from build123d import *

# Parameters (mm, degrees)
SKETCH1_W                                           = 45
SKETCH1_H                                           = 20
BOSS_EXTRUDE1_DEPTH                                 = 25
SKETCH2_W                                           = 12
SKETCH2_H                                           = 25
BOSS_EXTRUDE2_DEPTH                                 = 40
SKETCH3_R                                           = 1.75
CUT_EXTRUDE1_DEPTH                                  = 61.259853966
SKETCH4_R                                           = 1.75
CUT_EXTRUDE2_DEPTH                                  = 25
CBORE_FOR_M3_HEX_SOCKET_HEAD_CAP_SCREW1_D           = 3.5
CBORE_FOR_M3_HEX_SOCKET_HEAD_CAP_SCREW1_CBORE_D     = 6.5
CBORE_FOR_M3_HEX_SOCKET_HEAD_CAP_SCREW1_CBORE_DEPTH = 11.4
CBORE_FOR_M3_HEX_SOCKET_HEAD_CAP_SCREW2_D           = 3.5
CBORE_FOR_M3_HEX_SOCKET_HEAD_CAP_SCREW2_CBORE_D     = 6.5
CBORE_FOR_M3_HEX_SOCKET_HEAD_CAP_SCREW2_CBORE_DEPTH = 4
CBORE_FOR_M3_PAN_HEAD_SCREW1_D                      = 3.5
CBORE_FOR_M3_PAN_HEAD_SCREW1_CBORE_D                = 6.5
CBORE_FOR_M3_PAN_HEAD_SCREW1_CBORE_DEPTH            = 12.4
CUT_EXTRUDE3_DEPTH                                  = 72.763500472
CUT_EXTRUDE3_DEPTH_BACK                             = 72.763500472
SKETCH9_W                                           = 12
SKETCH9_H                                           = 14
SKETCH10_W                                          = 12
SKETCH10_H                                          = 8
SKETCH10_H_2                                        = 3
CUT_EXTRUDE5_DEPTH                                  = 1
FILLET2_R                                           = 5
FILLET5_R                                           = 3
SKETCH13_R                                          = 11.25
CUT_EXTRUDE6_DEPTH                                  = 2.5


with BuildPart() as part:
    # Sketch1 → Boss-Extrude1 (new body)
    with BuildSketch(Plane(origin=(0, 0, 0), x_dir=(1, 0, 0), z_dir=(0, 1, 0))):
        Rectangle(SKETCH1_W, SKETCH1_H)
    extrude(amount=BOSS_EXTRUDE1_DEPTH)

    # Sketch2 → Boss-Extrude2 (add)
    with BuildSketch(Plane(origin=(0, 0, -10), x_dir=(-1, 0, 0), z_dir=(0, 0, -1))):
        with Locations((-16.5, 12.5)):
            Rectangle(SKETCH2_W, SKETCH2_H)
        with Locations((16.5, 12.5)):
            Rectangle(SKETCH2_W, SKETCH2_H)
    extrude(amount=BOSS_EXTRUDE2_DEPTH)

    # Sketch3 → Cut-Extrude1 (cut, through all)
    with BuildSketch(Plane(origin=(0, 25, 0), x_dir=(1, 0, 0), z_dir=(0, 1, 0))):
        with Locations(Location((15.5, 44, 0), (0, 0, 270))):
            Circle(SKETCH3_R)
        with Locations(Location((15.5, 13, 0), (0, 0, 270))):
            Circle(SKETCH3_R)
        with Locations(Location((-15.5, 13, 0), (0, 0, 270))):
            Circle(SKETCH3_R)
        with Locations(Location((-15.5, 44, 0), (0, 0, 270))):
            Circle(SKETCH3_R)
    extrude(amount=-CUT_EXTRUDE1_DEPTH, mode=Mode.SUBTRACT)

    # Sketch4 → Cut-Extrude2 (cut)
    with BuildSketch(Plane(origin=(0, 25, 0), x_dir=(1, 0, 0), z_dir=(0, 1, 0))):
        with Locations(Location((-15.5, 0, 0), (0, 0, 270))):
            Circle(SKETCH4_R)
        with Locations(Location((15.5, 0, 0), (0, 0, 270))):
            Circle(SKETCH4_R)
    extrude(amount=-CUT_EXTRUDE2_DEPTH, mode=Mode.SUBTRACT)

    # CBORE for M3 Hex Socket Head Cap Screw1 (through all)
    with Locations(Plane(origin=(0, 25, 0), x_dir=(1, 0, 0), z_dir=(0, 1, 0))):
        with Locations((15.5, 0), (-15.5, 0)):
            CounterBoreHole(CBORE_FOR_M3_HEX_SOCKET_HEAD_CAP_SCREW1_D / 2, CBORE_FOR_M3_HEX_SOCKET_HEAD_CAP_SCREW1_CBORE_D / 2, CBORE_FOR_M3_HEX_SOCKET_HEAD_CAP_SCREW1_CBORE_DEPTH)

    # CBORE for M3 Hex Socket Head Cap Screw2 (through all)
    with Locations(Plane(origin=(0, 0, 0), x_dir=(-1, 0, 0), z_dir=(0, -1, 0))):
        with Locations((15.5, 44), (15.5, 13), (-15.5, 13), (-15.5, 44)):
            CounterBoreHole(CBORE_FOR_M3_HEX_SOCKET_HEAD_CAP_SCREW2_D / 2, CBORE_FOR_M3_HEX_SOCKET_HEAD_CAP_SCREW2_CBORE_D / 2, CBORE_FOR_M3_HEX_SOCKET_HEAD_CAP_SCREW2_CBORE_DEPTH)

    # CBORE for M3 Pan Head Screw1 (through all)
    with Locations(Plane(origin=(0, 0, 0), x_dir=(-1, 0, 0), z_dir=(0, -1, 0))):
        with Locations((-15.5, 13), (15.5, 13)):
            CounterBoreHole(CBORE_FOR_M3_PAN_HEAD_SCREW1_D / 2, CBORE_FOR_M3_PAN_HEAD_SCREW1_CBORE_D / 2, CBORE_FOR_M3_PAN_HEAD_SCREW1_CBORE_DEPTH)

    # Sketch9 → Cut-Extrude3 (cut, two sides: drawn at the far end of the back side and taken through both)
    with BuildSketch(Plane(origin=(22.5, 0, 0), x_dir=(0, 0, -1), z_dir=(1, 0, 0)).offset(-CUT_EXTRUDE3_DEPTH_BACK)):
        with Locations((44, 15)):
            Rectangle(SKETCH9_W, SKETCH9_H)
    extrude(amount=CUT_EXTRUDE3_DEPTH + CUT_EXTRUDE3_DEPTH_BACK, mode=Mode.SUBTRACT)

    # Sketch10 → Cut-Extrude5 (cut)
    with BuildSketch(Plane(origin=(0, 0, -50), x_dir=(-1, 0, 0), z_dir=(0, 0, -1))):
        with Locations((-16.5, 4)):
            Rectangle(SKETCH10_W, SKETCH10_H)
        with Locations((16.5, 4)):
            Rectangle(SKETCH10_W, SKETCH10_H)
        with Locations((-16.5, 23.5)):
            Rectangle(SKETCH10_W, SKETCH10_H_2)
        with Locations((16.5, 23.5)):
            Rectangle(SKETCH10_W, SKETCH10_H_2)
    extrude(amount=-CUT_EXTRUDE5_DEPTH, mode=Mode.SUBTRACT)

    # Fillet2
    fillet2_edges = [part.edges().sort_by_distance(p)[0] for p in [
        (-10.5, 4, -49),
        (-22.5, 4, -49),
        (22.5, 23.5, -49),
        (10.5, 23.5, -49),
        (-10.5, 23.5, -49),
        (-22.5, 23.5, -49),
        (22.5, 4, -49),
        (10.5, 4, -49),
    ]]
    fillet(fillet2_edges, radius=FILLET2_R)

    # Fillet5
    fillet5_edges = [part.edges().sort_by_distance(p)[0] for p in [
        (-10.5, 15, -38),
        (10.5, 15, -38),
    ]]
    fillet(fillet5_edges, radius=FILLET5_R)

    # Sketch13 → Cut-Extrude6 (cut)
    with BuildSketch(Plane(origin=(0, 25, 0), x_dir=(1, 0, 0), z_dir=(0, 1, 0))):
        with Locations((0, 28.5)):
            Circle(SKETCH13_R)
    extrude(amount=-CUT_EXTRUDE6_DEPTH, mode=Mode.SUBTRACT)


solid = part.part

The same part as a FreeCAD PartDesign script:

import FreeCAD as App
import Part
import Sketcher
Q = App.Units.Quantity


def edges_at(feature, points):
    """Names of the edges that pass closest to the given points."""
    edges = feature.Shape.Edges
    near = lambda p: min(range(len(edges)), key=lambda i: edges[i].distToShape(Part.Vertex(*p))[0])
    return sorted({f"Edge{near(p) + 1}" for p in points})

doc = App.newDocument("Part")
body = doc.addObject("PartDesign::Body", "Body")

# Sketch on XZ plane
sketch1 = body.newObject("Sketcher::SketchObject", "Sketch")
sketch1.AttachmentSupport = (doc.getObject("XZ_Plane"), [""])
sketch1.MapMode = "FlatFace"
sketch1.addGeometry(Part.LineSegment(App.Vector(-22, -10, 0), App.Vector(-22, 10, 0)), False)
sketch1.addGeometry(Part.LineSegment(App.Vector(-22, 10, 0), App.Vector(22, 10, 0)), False)
sketch1.addGeometry(Part.LineSegment(App.Vector(22, 10, 0), App.Vector(22, -10, 0)), False)
sketch1.addGeometry(Part.LineSegment(App.Vector(22, -10, 0), App.Vector(-22, -10, 0)), False)
sketch1.addConstraint(Sketcher.Constraint("Coincident", 0, 2, 1, 1))
sketch1.addConstraint(Sketcher.Constraint("Coincident", 1, 2, 2, 1))
sketch1.addConstraint(Sketcher.Constraint("Coincident", 2, 2, 3, 1))
sketch1.addConstraint(Sketcher.Constraint("Coincident", 3, 2, 0, 1))
sketch1.addConstraint(Sketcher.Constraint("Vertical", 0))
sketch1.addConstraint(Sketcher.Constraint("Horizontal", 1))
sketch1.addConstraint(Sketcher.Constraint("Vertical", 2))
sketch1.addConstraint(Sketcher.Constraint("Horizontal", 3))
sketch1.addConstraint(Sketcher.Constraint("Symmetric", 0, 2, 2, 2, -1, 1))
sketch1.addConstraint(Sketcher.Constraint("DistanceX", 1, 1, 1, 2, Q("45 mm")))
sketch1.addConstraint(Sketcher.Constraint("DistanceY", 0, 1, 0, 2, Q("20 mm")))
pad1 = body.newObject("PartDesign::Pad", "Pad")
pad1.Profile = sketch1
pad1.Length = 25
pad1.Reversed = True

# Sketch on XY plane
sketch2 = body.newObject("Sketcher::SketchObject", "Sketch001")
sketch2.AttachmentSupport = (doc.getObject("XY_Plane"), [""])
sketch2.MapMode = "FlatFace"
sketch2.AttachmentOffset = App.Placement(App.Vector(0, 0, -10), App.Rotation())
sketch2.addGeometry(Part.LineSegment(App.Vector(22, 25, 0), App.Vector(22, 0, 0)), False)
sketch2.addGeometry(Part.LineSegment(App.Vector(22, 0, 0), App.Vector(10, 0, 0)), False)
sketch2.addGeometry(Part.LineSegment(App.Vector(10, 0, 0), App.Vector(10, 25, 0)), False)
sketch2.addGeometry(Part.LineSegment(App.Vector(10, 25, 0), App.Vector(22, 25, 0)), False)
sketch2.addGeometry(Part.LineSegment(App.Vector(-10, 25, 0), App.Vector(-10, 0, 0)), False)
sketch2.addGeometry(Part.LineSegment(App.Vector(-10, 0, 0), App.Vector(-22, 0, 0)), False)
sketch2.addGeometry(Part.LineSegment(App.Vector(-22, 0, 0), App.Vector(-22, 25, 0)), False)
sketch2.addGeometry(Part.LineSegment(App.Vector(-22, 25, 0), App.Vector(-10, 25, 0)), False)
sketch2.addConstraint(Sketcher.Constraint("Coincident", 0, 2, 1, 1))
sketch2.addConstraint(Sketcher.Constraint("Coincident", 1, 2, 2, 1))
sketch2.addConstraint(Sketcher.Constraint("Coincident", 2, 2, 3, 1))
sketch2.addConstraint(Sketcher.Constraint("Coincident", 3, 2, 0, 1))
sketch2.addConstraint(Sketcher.Constraint("Coincident", 4, 2, 5, 1))
sketch2.addConstraint(Sketcher.Constraint("Coincident", 5, 2, 6, 1))
sketch2.addConstraint(Sketcher.Constraint("Coincident", 6, 2, 7, 1))
sketch2.addConstraint(Sketcher.Constraint("Coincident", 7, 2, 4, 1))
sketch2.addConstraint(Sketcher.Constraint("Vertical", 0))
sketch2.addConstraint(Sketcher.Constraint("Horizontal", 1))
sketch2.addConstraint(Sketcher.Constraint("Vertical", 2))
sketch2.addConstraint(Sketcher.Constraint("Horizontal", 3))
sketch2.addConstraint(Sketcher.Constraint("Vertical", 4))
sketch2.addConstraint(Sketcher.Constraint("Horizontal", 5))
sketch2.addConstraint(Sketcher.Constraint("Vertical", 6))
sketch2.addConstraint(Sketcher.Constraint("Horizontal", 7))
sketch2.addConstraint(Sketcher.Constraint("Symmetric", 1, 2, 4, 2, -1, 1))
sketch2.addConstraint(Sketcher.Constraint("Symmetric", 0, 2, 5, 2, -2))
sketch2.addConstraint(Sketcher.Constraint("Horizontal", 3, 2, 6, 2))
sketch2.addConstraint(Sketcher.Constraint("DistanceX", 1, 2, 1, 1, Q("12 mm")))
sketch2.addConstraint(Sketcher.Constraint("DistanceY", 0, 2, 0, 1, Q("25 mm")))
sketch2.addConstraint(Sketcher.Constraint("DistanceX", 4, 2, 1, 2, Q("21 mm")))
pad2 = body.newObject("PartDesign::Pad", "Pad001")
pad2.Profile = sketch2
pad2.Length = 40
pad2.Reversed = True

# Sketch on XZ plane
sketch3 = body.newObject("Sketcher::SketchObject", "Sketch002")
sketch3.AttachmentSupport = (doc.getObject("XZ_Plane"), [""])
sketch3.MapMode = "FlatFace"
sketch3.AttachmentOffset = App.Placement(App.Vector(0, 0, -25), App.Rotation())
sketch3.addGeometry(Part.Circle(App.Vector(15.5, -44, 0), App.Vector(0, 0, 1), 1.8), False)
sketch3.addGeometry(Part.Circle(App.Vector(15.5, -13, 0), App.Vector(0, 0, 1), 1.8), False)
sketch3.addGeometry(Part.Circle(App.Vector(-15.5, -13, 0), App.Vector(0, 0, 1), 1.8), False)
sketch3.addGeometry(Part.Circle(App.Vector(-15.5, -44, 0), App.Vector(0, 0, 1), 1.8), False)
sketch3.addConstraint(Sketcher.Constraint("Equal", 0, 1))
sketch3.addConstraint(Sketcher.Constraint("Equal", 1, 2))
sketch3.addConstraint(Sketcher.Constraint("Equal", 2, 3))
sketch3.addConstraint(Sketcher.Constraint("Symmetric", 1, 3, 2, 3, -2))
sketch3.addConstraint(Sketcher.Constraint("Symmetric", 0, 3, 3, 3, -2))
sketch3.addConstraint(Sketcher.Constraint("Vertical", 0, 3, 1, 3))
sketch3.addConstraint(Sketcher.Constraint("Diameter", 0, Q("3.5 mm")))
sketch3.addConstraint(Sketcher.Constraint("DistanceY", 0, 3, -1, 1, Q("44 mm")))
sketch3.addConstraint(Sketcher.Constraint("DistanceY", 1, 3, -1, 1, Q("13 mm")))
sketch3.addConstraint(Sketcher.Constraint("DistanceX", 2, 3, 1, 3, Q("31 mm")))
pocket1 = body.newObject("PartDesign::Pocket", "Pocket")
pocket1.Profile = sketch3
pocket1.Type = "ThroughAll"
pocket1.Reversed = True

# Sketch on XZ plane
sketch4 = body.newObject("Sketcher::SketchObject", "Sketch003")
sketch4.AttachmentSupport = (doc.getObject("XZ_Plane"), [""])
sketch4.MapMode = "FlatFace"
sketch4.AttachmentOffset = App.Placement(App.Vector(0, 0, -25), App.Rotation())
sketch4.addGeometry(Part.Circle(App.Vector(-15.5, 0, 0), App.Vector(0, 0, 1), 1.8), False)
sketch4.addGeometry(Part.Circle(App.Vector(15.5, 0, 0), App.Vector(0, 0, 1), 1.8), False)
sketch4.addConstraint(Sketcher.Constraint("Equal", 0, 1))
sketch4.addConstraint(Sketcher.Constraint("Symmetric", 0, 3, 1, 3, -1, 1))
sketch4.addConstraint(Sketcher.Constraint("PointOnObject", 0, 3, -1))
sketch4.addConstraint(Sketcher.Constraint("Diameter", 0, Q("3.5 mm")))
sketch4.addConstraint(Sketcher.Constraint("DistanceX", 0, 3, 1, 3, Q("31 mm")))
pocket2 = body.newObject("PartDesign::Pocket", "Pocket001")
pocket2.Profile = sketch4
pocket2.Length = 25
pocket2.Reversed = True

# Sketch on XZ plane
sketch5 = body.newObject("Sketcher::SketchObject", "Sketch004")
sketch5.AttachmentSupport = (doc.getObject("XZ_Plane"), [""])
sketch5.MapMode = "FlatFace"
sketch5.AttachmentOffset = App.Placement(App.Vector(0, 0, -25), App.Rotation())
sketch5.addGeometry(Part.Circle(App.Vector(15.5, 0, 0), App.Vector(0, 0, 1), 1.8), False)
sketch5.addGeometry(Part.Circle(App.Vector(-15.5, 0, 0), App.Vector(0, 0, 1), 1.8), False)
sketch5.addConstraint(Sketcher.Constraint("Equal", 0, 1))
sketch5.addConstraint(Sketcher.Constraint("Symmetric", 0, 3, 1, 3, -1, 1))
sketch5.addConstraint(Sketcher.Constraint("PointOnObject", 0, 3, -1))
sketch5.addConstraint(Sketcher.Constraint("Diameter", 0, Q("3.5 mm")))
sketch5.addConstraint(Sketcher.Constraint("DistanceX", 1, 3, 0, 3, Q("31 mm")))
doc.recompute()
hole = body.newObject("PartDesign::Hole", "Hole")
hole.Profile = sketch5
hole.ThreadType = "None"
hole.Diameter = 3.5
hole.DepthType = "ThroughAll"
hole.HoleCutType = "Counterbore"
hole.HoleCutDiameter = 6.5
hole.HoleCutDepth = 11.4
hole.Reversed = True

# Sketch on XZ plane
sketch6 = body.newObject("Sketcher::SketchObject", "Sketch005")
sketch6.AttachmentSupport = (doc.getObject("XZ_Plane"), [""])
sketch6.MapMode = "FlatFace"
sketch6.addGeometry(Part.Circle(App.Vector(-15.5, -44, 0), App.Vector(0, 0, 1), 1.8), False)
sketch6.addGeometry(Part.Circle(App.Vector(-15.5, -13, 0), App.Vector(0, 0, 1), 1.8), False)
sketch6.addGeometry(Part.Circle(App.Vector(15.5, -13, 0), App.Vector(0, 0, 1), 1.8), False)
sketch6.addGeometry(Part.Circle(App.Vector(15.5, -44, 0), App.Vector(0, 0, 1), 1.8), False)
sketch6.addConstraint(Sketcher.Constraint("Equal", 0, 1))
sketch6.addConstraint(Sketcher.Constraint("Equal", 1, 2))
sketch6.addConstraint(Sketcher.Constraint("Equal", 2, 3))
sketch6.addConstraint(Sketcher.Constraint("Symmetric", 1, 3, 2, 3, -2))
sketch6.addConstraint(Sketcher.Constraint("Symmetric", 0, 3, 3, 3, -2))
sketch6.addConstraint(Sketcher.Constraint("Vertical", 0, 3, 1, 3))
sketch6.addConstraint(Sketcher.Constraint("Diameter", 0, Q("3.5 mm")))
sketch6.addConstraint(Sketcher.Constraint("DistanceY", 0, 3, -1, 1, Q("44 mm")))
sketch6.addConstraint(Sketcher.Constraint("DistanceY", 1, 3, -1, 1, Q("13 mm")))
sketch6.addConstraint(Sketcher.Constraint("DistanceX", 1, 3, 2, 3, Q("31 mm")))
doc.recompute()
hole2 = body.newObject("PartDesign::Hole", "Hole001")
hole2.Profile = sketch6
hole2.ThreadType = "None"
hole2.Diameter = 3.5
hole2.DepthType = "ThroughAll"
hole2.HoleCutType = "Counterbore"
hole2.HoleCutDiameter = 6.5
hole2.HoleCutDepth = 4

# Sketch on XZ plane
sketch7 = body.newObject("Sketcher::SketchObject", "Sketch006")
sketch7.AttachmentSupport = (doc.getObject("XZ_Plane"), [""])
sketch7.MapMode = "FlatFace"
sketch7.addGeometry(Part.Circle(App.Vector(15.5, -13, 0), App.Vector(0, 0, 1), 1.8), False)
sketch7.addGeometry(Part.Circle(App.Vector(-15.5, -13, 0), App.Vector(0, 0, 1), 1.8), False)
sketch7.addConstraint(Sketcher.Constraint("Equal", 0, 1))
sketch7.addConstraint(Sketcher.Constraint("Symmetric", 0, 3, 1, 3, -2))
sketch7.addConstraint(Sketcher.Constraint("Diameter", 0, Q("3.5 mm")))
sketch7.addConstraint(Sketcher.Constraint("DistanceY", 0, 3, -1, 1, Q("13 mm")))
sketch7.addConstraint(Sketcher.Constraint("DistanceX", 1, 3, 0, 3, Q("31 mm")))
doc.recompute()
hole3 = body.newObject("PartDesign::Hole", "Hole002")
hole3.Profile = sketch7
hole3.ThreadType = "None"
hole3.Diameter = 3.5
hole3.DepthType = "ThroughAll"
hole3.HoleCutType = "Counterbore"
hole3.HoleCutDiameter = 6.5
hole3.HoleCutDepth = 12.4

# Sketch on YZ plane
sketch8 = body.newObject("Sketcher::SketchObject", "Sketch007")
sketch8.AttachmentSupport = (doc.getObject("YZ_Plane"), [""])
sketch8.MapMode = "FlatFace"
sketch8.AttachmentOffset = App.Placement(App.Vector(0, 0, 22.5), App.Rotation())
sketch8.addGeometry(Part.LineSegment(App.Vector(22, -38, 0), App.Vector(8, -38, 0)), False)
sketch8.addGeometry(Part.LineSegment(App.Vector(8, -38, 0), App.Vector(8, -50, 0)), False)
sketch8.addGeometry(Part.LineSegment(App.Vector(8, -50, 0), App.Vector(22, -50, 0)), False)
sketch8.addGeometry(Part.LineSegment(App.Vector(22, -50, 0), App.Vector(22, -38, 0)), False)
sketch8.addConstraint(Sketcher.Constraint("Coincident", 0, 2, 1, 1))
sketch8.addConstraint(Sketcher.Constraint("Coincident", 1, 2, 2, 1))
sketch8.addConstraint(Sketcher.Constraint("Coincident", 2, 2, 3, 1))
sketch8.addConstraint(Sketcher.Constraint("Coincident", 3, 2, 0, 1))
sketch8.addConstraint(Sketcher.Constraint("Horizontal", 0))
sketch8.addConstraint(Sketcher.Constraint("Vertical", 1))
sketch8.addConstraint(Sketcher.Constraint("Horizontal", 2))
sketch8.addConstraint(Sketcher.Constraint("Vertical", 3))
sketch8.addConstraint(Sketcher.Constraint("DistanceX", 0, 2, 0, 1, Q("14 mm")))
sketch8.addConstraint(Sketcher.Constraint("DistanceY", 1, 2, 1, 1, Q("12 mm")))
sketch8.addConstraint(Sketcher.Constraint("DistanceX", -1, 1, 0, 2, Q("8 mm")))
sketch8.addConstraint(Sketcher.Constraint("DistanceY", 0, 2, -1, 1, Q("38 mm")))
pocket3 = body.newObject("PartDesign::Pocket", "Pocket002")
pocket3.Profile = sketch8
pocket3.Type = "ThroughAll"
pocket3.Midplane = True

# Sketch on XY plane
sketch9 = body.newObject("Sketcher::SketchObject", "Sketch008")
sketch9.AttachmentSupport = (doc.getObject("XY_Plane"), [""])
sketch9.MapMode = "FlatFace"
sketch9.AttachmentOffset = App.Placement(App.Vector(0, 0, -50), App.Rotation())
sketch9.addGeometry(Part.LineSegment(App.Vector(22.5, 8, 0), App.Vector(22.5, 0, 0)), False)
sketch9.addGeometry(Part.LineSegment(App.Vector(22.5, 0, 0), App.Vector(10.5, 0, 0)), False)
sketch9.addGeometry(Part.LineSegment(App.Vector(10.5, 0, 0), App.Vector(10.5, 8, 0)), False)
sketch9.addGeometry(Part.LineSegment(App.Vector(10.5, 8, 0), App.Vector(22.5, 8, 0)), False)
sketch9.addGeometry(Part.LineSegment(App.Vector(-10.5, 8, 0), App.Vector(-10.5, 0, 0)), False)
sketch9.addGeometry(Part.LineSegment(App.Vector(-10.5, 0, 0), App.Vector(-22.5, 0, 0)), False)
sketch9.addGeometry(Part.LineSegment(App.Vector(-22.5, 0, 0), App.Vector(-22.5, 8, 0)), False)
sketch9.addGeometry(Part.LineSegment(App.Vector(-22.5, 8, 0), App.Vector(-10.5, 8, 0)), False)
sketch9.addGeometry(Part.LineSegment(App.Vector(22.5, 25, 0), App.Vector(22.5, 22, 0)), False)
sketch9.addGeometry(Part.LineSegment(App.Vector(22.5, 22, 0), App.Vector(10.5, 22, 0)), False)
sketch9.addGeometry(Part.LineSegment(App.Vector(10.5, 22, 0), App.Vector(10.5, 25, 0)), False)
sketch9.addGeometry(Part.LineSegment(App.Vector(10.5, 25, 0), App.Vector(22.5, 25, 0)), False)
sketch9.addGeometry(Part.LineSegment(App.Vector(-10.5, 25, 0), App.Vector(-10.5, 22, 0)), False)
sketch9.addGeometry(Part.LineSegment(App.Vector(-10.5, 22, 0), App.Vector(-22.5, 22, 0)), False)
sketch9.addGeometry(Part.LineSegment(App.Vector(-22.5, 22, 0), App.Vector(-22.5, 25, 0)), False)
sketch9.addGeometry(Part.LineSegment(App.Vector(-22.5, 25, 0), App.Vector(-10.5, 25, 0)), False)
sketch9.addConstraint(Sketcher.Constraint("Coincident", 0, 2, 1, 1))
sketch9.addConstraint(Sketcher.Constraint("Coincident", 1, 2, 2, 1))
sketch9.addConstraint(Sketcher.Constraint("Coincident", 2, 2, 3, 1))
sketch9.addConstraint(Sketcher.Constraint("Coincident", 3, 2, 0, 1))
sketch9.addConstraint(Sketcher.Constraint("Coincident", 4, 2, 5, 1))
sketch9.addConstraint(Sketcher.Constraint("Coincident", 5, 2, 6, 1))
sketch9.addConstraint(Sketcher.Constraint("Coincident", 6, 2, 7, 1))
sketch9.addConstraint(Sketcher.Constraint("Coincident", 7, 2, 4, 1))
sketch9.addConstraint(Sketcher.Constraint("Coincident", 8, 2, 9, 1))
sketch9.addConstraint(Sketcher.Constraint("Coincident", 9, 2, 10, 1))
sketch9.addConstraint(Sketcher.Constraint("Coincident", 10, 2, 11, 1))
sketch9.addConstraint(Sketcher.Constraint("Coincident", 11, 2, 8, 1))
sketch9.addConstraint(Sketcher.Constraint("Coincident", 12, 2, 13, 1))
sketch9.addConstraint(Sketcher.Constraint("Coincident", 13, 2, 14, 1))
sketch9.addConstraint(Sketcher.Constraint("Coincident", 14, 2, 15, 1))
sketch9.addConstraint(Sketcher.Constraint("Coincident", 15, 2, 12, 1))
sketch9.addConstraint(Sketcher.Constraint("Vertical", 0))
sketch9.addConstraint(Sketcher.Constraint("Horizontal", 1))
sketch9.addConstraint(Sketcher.Constraint("Vertical", 2))
sketch9.addConstraint(Sketcher.Constraint("Horizontal", 3))
sketch9.addConstraint(Sketcher.Constraint("Vertical", 4))
sketch9.addConstraint(Sketcher.Constraint("Horizontal", 5))
sketch9.addConstraint(Sketcher.Constraint("Vertical", 6))
sketch9.addConstraint(Sketcher.Constraint("Horizontal", 7))
sketch9.addConstraint(Sketcher.Constraint("Vertical", 8))
sketch9.addConstraint(Sketcher.Constraint("Horizontal", 9))
sketch9.addConstraint(Sketcher.Constraint("Vertical", 10))
sketch9.addConstraint(Sketcher.Constraint("Horizontal", 11))
sketch9.addConstraint(Sketcher.Constraint("Vertical", 12))
sketch9.addConstraint(Sketcher.Constraint("Horizontal", 13))
sketch9.addConstraint(Sketcher.Constraint("Vertical", 14))
sketch9.addConstraint(Sketcher.Constraint("Horizontal", 15))
sketch9.addConstraint(Sketcher.Constraint("Symmetric", 1, 2, 4, 2, -1, 1))
sketch9.addConstraint(Sketcher.Constraint("Symmetric", 0, 2, 5, 2, -2))
sketch9.addConstraint(Sketcher.Constraint("Symmetric", 9, 2, 12, 2, -2))
sketch9.addConstraint(Sketcher.Constraint("Symmetric", 11, 2, 14, 2, -2))
sketch9.addConstraint(Sketcher.Constraint("Horizontal", 3, 2, 6, 2))
sketch9.addConstraint(Sketcher.Constraint("Vertical", 3, 2, 8, 2))
sketch9.addConstraint(Sketcher.Constraint("Vertical", 2, 2, 9, 2))
sketch9.addConstraint(Sketcher.Constraint("DistanceX", 1, 2, 1, 1, Q("12 mm")))
sketch9.addConstraint(Sketcher.Constraint("DistanceY", 0, 2, 0, 1, Q("8 mm")))
sketch9.addConstraint(Sketcher.Constraint("DistanceY", 8, 2, 8, 1, Q("3 mm")))
sketch9.addConstraint(Sketcher.Constraint("DistanceY", -1, 1, 8, 2, Q("22 mm")))
sketch9.addConstraint(Sketcher.Constraint("DistanceX", 4, 2, 1, 2, Q("21 mm")))
pocket4 = body.newObject("PartDesign::Pocket", "Pocket003")
pocket4.Profile = sketch9
pocket4.Length = 1
pocket4.Reversed = True
doc.recompute()

fillet = body.newObject("PartDesign::Fillet", "Fillet")
fillet.Base = (pocket4, edges_at(pocket4, [
    (-10.5, 4, -49),
    (-22.5, 4, -49),
    (22.5, 23.5, -49),
    (10.5, 23.5, -49),
    (-10.5, 23.5, -49),
    (-22.5, 23.5, -49),
    (22.5, 4, -49),
    (10.5, 4, -49),
]))
fillet.Radius = 5
doc.recompute()

fillet2 = body.newObject("PartDesign::Fillet", "Fillet001")
fillet2.Base = (fillet, edges_at(fillet, [(-10.5, 15, -38), (10.5, 15, -38)]))
fillet2.Radius = 3

# Sketch on XZ plane
sketch10 = body.newObject("Sketcher::SketchObject", "Sketch009")
sketch10.AttachmentSupport = (doc.getObject("XZ_Plane"), [""])
sketch10.MapMode = "FlatFace"
sketch10.AttachmentOffset = App.Placement(App.Vector(0, 0, -25), App.Rotation())
sketch10.addGeometry(Part.Circle(App.Vector(0, -28, 0), App.Vector(0, 0, 1), 11), False)
sketch10.addConstraint(Sketcher.Constraint("PointOnObject", 0, 3, -2))
sketch10.addConstraint(Sketcher.Constraint("Diameter", 0, Q("22.5 mm")))
sketch10.addConstraint(Sketcher.Constraint("DistanceY", 0, 3, -1, 1, Q("28.5 mm")))
pocket5 = body.newObject("PartDesign::Pocket", "Pocket004")
pocket5.Profile = sketch10
pocket5.Length = 2.5
pocket5.Reversed = True

doc.recompute()
